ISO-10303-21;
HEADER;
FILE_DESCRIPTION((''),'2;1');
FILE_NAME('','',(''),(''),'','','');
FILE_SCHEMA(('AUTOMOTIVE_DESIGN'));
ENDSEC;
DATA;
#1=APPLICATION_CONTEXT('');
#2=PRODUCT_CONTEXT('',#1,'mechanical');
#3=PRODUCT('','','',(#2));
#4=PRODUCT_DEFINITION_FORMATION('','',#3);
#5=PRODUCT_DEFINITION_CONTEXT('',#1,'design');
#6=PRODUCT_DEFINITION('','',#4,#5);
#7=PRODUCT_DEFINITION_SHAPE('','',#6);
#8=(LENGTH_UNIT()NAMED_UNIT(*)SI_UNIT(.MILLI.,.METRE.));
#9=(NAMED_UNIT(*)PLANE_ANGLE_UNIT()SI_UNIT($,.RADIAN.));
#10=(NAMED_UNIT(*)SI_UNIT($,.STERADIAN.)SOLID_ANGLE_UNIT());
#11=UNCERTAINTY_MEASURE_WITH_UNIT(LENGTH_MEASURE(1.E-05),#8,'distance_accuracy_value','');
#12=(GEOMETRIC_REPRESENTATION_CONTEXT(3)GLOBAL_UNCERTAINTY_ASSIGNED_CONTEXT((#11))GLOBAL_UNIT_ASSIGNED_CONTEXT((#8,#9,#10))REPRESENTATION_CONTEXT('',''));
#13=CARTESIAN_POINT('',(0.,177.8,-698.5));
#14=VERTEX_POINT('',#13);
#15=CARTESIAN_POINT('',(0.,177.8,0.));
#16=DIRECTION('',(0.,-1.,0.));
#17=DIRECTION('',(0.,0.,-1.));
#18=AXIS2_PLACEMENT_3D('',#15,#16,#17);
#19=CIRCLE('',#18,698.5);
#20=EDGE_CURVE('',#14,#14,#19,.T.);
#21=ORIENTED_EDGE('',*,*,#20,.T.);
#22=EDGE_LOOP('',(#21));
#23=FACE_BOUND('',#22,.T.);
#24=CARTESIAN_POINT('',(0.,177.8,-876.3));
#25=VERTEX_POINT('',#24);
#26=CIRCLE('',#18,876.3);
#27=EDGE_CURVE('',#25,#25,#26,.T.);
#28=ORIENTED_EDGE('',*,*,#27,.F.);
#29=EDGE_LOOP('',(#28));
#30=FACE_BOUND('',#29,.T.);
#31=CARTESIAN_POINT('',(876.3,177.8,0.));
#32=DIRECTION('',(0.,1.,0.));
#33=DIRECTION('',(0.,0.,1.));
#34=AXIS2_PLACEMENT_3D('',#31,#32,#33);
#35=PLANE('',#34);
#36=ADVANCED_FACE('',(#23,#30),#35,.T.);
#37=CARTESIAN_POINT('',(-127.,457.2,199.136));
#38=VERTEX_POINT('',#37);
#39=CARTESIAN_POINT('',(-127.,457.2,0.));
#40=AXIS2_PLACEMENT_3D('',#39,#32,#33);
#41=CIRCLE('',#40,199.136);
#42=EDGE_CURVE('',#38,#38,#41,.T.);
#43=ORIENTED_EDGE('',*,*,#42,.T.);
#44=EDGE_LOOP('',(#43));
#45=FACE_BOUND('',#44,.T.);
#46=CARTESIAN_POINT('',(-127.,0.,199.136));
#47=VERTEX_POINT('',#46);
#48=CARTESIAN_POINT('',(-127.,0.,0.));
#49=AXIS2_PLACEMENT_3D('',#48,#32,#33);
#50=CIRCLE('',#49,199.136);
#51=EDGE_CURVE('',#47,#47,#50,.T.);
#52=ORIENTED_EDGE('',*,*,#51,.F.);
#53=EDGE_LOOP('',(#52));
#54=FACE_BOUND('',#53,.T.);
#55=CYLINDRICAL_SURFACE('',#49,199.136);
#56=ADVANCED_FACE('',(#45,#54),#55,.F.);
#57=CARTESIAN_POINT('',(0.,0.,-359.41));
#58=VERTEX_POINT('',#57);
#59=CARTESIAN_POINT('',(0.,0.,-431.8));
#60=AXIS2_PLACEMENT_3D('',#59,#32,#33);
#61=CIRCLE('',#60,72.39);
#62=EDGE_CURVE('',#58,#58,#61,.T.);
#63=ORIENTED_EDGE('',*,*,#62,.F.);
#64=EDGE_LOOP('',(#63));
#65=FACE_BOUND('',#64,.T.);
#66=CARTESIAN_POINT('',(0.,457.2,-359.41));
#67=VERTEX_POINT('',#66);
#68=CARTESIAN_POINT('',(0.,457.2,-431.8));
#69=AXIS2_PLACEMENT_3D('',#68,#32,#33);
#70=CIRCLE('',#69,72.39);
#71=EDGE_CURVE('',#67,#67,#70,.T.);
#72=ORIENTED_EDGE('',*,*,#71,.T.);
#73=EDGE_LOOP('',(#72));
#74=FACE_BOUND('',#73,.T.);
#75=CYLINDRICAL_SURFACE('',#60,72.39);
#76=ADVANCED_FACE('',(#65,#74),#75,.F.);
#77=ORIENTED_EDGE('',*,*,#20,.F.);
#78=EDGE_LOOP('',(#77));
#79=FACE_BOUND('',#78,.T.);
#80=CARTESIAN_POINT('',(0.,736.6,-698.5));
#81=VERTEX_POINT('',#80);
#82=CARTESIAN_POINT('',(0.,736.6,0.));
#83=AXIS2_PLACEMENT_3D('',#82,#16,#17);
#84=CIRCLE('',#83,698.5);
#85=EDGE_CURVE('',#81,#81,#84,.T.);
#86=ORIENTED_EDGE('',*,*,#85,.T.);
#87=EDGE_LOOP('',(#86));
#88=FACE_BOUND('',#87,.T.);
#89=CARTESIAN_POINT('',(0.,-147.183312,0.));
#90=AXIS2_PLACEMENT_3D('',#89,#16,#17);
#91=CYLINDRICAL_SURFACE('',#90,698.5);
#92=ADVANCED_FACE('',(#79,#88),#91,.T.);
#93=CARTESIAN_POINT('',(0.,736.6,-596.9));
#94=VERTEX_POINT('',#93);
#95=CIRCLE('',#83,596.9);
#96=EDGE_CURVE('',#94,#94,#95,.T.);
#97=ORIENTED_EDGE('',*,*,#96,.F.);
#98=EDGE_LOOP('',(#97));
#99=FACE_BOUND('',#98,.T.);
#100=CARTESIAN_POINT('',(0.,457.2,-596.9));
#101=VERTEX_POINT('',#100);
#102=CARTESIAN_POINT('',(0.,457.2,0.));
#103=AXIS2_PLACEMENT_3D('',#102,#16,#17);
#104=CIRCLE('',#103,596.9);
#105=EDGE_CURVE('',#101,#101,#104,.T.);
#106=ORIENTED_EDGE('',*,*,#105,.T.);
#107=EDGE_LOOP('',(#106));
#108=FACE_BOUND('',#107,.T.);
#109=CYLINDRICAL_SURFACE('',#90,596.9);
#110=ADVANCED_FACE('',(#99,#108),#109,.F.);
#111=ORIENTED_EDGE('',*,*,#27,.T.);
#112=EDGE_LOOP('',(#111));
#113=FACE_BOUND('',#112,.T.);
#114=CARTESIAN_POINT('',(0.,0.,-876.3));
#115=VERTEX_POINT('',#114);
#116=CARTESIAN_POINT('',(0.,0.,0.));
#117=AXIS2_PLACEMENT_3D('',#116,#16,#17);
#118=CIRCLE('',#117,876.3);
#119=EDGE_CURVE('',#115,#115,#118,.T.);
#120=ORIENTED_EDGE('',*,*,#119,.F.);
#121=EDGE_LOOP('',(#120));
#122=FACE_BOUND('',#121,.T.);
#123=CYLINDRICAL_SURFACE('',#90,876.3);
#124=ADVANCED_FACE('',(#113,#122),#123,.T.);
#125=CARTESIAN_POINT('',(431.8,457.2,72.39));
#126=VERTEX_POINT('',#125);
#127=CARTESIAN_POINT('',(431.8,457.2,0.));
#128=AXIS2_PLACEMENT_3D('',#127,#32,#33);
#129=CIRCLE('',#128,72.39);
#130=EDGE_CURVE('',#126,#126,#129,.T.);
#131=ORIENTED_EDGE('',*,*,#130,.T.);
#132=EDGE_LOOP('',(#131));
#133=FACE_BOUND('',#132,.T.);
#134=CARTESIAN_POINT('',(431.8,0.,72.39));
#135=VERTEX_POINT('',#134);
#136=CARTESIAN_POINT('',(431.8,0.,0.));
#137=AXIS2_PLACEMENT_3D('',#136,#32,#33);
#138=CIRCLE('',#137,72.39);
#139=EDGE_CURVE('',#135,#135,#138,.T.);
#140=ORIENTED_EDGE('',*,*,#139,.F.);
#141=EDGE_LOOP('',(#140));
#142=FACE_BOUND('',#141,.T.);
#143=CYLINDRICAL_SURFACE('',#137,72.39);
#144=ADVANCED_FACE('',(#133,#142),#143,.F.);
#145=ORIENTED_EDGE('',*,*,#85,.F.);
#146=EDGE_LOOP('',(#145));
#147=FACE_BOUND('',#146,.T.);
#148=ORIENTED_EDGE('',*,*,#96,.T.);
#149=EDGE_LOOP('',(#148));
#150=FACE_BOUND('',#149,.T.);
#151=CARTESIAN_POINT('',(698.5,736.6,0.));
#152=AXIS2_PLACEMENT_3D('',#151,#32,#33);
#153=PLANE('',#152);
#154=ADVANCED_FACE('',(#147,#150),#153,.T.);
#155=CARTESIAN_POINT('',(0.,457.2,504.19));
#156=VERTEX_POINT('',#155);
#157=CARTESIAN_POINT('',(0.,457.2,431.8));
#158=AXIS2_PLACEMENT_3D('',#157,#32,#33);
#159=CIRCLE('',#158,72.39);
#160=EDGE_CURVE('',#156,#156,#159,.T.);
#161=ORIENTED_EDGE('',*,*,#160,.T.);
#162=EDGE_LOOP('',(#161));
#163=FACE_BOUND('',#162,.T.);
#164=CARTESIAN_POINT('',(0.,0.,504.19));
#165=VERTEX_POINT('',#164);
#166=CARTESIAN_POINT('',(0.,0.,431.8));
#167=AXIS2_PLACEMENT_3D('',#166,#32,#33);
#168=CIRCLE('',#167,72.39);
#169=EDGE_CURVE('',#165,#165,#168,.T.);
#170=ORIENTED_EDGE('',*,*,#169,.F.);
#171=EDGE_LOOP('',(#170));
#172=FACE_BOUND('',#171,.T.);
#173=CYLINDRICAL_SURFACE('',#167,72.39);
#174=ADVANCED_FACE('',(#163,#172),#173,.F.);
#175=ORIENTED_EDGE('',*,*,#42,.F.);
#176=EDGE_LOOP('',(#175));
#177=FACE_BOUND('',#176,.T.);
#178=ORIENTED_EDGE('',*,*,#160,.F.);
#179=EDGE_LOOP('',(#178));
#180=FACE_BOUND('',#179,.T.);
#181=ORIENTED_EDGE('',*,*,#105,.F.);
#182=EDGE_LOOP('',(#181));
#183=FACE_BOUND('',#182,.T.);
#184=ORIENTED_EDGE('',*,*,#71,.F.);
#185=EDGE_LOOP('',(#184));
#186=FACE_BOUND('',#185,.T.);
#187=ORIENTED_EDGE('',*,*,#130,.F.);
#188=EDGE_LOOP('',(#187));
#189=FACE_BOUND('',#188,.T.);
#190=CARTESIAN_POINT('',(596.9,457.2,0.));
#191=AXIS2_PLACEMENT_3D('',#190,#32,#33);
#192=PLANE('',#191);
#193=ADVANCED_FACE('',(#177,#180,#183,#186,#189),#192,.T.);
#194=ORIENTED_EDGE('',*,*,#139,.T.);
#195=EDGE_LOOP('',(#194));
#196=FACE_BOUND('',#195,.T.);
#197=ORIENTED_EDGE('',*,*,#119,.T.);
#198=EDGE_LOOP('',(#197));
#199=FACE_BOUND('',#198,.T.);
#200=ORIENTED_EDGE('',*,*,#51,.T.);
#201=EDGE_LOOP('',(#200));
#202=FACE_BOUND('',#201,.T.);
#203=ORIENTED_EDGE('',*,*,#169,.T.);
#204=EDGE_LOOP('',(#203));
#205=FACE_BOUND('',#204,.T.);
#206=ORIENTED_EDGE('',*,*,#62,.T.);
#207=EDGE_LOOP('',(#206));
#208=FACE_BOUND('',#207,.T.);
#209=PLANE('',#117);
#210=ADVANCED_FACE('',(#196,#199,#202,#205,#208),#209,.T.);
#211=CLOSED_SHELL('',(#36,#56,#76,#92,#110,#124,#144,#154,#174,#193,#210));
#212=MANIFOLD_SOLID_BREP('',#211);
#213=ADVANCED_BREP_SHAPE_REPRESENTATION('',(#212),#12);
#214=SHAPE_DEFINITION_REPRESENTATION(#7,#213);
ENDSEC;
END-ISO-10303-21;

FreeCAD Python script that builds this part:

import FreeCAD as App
import Part
import Sketcher

V = App.Vector
Q = App.Units.Quantity

doc = App.newDocument("Part")
params = doc.addObject("Spreadsheet::Sheet", "Params")
for row, (alias, value) in enumerate([
    ("sketch1_width", "7 in"),
    ("sketch1_width2", "4 in"),
    ("sketch1_height", "22 in"),
    ("sketch1_height2", "11 in"),
    ("sketch1_width3", "34.5 in"),
    ("revolution_angle", "360 deg"),
    ("sketch2_diameter", "5.7 in"),
    ("sketch2_diameter2", "15.68 in"),
], start=1):
    params.set(f"A{row}", alias)
    params.set(f"B{row}", "=" + value)
    params.setAlias(f"B{row}", alias)

body = doc.addObject("PartDesign::Body", "Body")

# Sketch on XY plane
sketch1 = body.newObject("Sketcher::SketchObject", "Sketch")
sketch1.AttachmentSupport = (doc.getObject("XY_Plane"), [""])
sketch1.MapMode = "FlatFace"
sketch1.addGeometry(Part.LineSegment(V(0, 0, 0), V(876.3, 0, 0)), False)
sketch1.addGeometry(Part.LineSegment(V(876.3, 0, 0), V(876.3, 177.8, 0)), False)
sketch1.addGeometry(Part.LineSegment(V(876.3, 177.8, 0), V(698.5, 177.8, 0)), False)
sketch1.addGeometry(Part.LineSegment(V(698.5, 177.8, 0), V(698.5, 736.6, 0)), False)
sketch1.addGeometry(Part.LineSegment(V(698.5, 736.6, 0), V(596.9, 736.6, 0)), False)
sketch1.addGeometry(Part.LineSegment(V(596.9, 736.6, 0), V(596.9, 457.2, 0)), False)
sketch1.addGeometry(Part.LineSegment(V(596.9, 457.2, 0), V(0, 457.2, 0)), False)
sketch1.addGeometry(Part.LineSegment(V(0, 457.2, 0), V(0, 0, 0)), False)
sketch1.addConstraint(Sketcher.Constraint("Coincident", 0, 2, 1, 1))
sketch1.addConstraint(Sketcher.Constraint("Coincident", 1, 2, 2, 1))
sketch1.addConstraint(Sketcher.Constraint("Coincident", 2, 2, 3, 1))
sketch1.addConstraint(Sketcher.Constraint("Coincident", 3, 2, 4, 1))
sketch1.addConstraint(Sketcher.Constraint("Coincident", 4, 2, 5, 1))
sketch1.addConstraint(Sketcher.Constraint("Coincident", 5, 2, 6, 1))
sketch1.addConstraint(Sketcher.Constraint("Coincident", 6, 2, 7, 1))
sketch1.addConstraint(Sketcher.Constraint("Coincident", 7, 2, 0, 1))
sketch1.addConstraint(Sketcher.Constraint("Horizontal", 0))
sketch1.addConstraint(Sketcher.Constraint("Vertical", 1))
sketch1.addConstraint(Sketcher.Constraint("Horizontal", 2))
sketch1.addConstraint(Sketcher.Constraint("Vertical", 3))
sketch1.addConstraint(Sketcher.Constraint("Horizontal", 4))
sketch1.addConstraint(Sketcher.Constraint("Vertical", 5))
sketch1.addConstraint(Sketcher.Constraint("Horizontal", 6))
sketch1.addConstraint(Sketcher.Constraint("Vertical", 7))
sketch1.addConstraint(Sketcher.Constraint("Coincident", 7, 2, -1, 1))
sketch1.addConstraint(Sketcher.Constraint("Equal", 2, 1))
sketch1.addConstraint(Sketcher.Constraint("DistanceX", 2, 2, 2, 1, Q("7 in")))
sketch1.addConstraint(Sketcher.Constraint("DistanceX", 4, 2, 4, 1, Q("4 in")))
sketch1.addConstraint(Sketcher.Constraint("DistanceY", 3, 1, 3, 2, Q("22 in")))
sketch1.addConstraint(Sketcher.Constraint("DistanceY", 5, 2, 5, 1, Q("11 in")))
sketch1.addConstraint(Sketcher.Constraint("DistanceX", 0, 1, 0, 2, Q("34.5 in")))
sketch1.setExpression("Constraints[18]", "Params.sketch1_width")
sketch1.setExpression("Constraints[19]", "Params.sketch1_width2")
sketch1.setExpression("Constraints[20]", "Params.sketch1_height")
sketch1.setExpression("Constraints[21]", "Params.sketch1_height2")
sketch1.setExpression("Constraints[22]", "Params.sketch1_width3")
revolution = body.newObject("PartDesign::Revolution", "Revolution")
revolution.Profile = sketch1
revolution.ReferenceAxis = (sketch1, ["V_Axis"])
revolution.setExpression("Angle", "Params.revolution_angle")

# Sketch on XZ plane
sketch2 = body.newObject("Sketcher::SketchObject", "Sketch001")
sketch2.AttachmentSupport = (doc.getObject("XZ_Plane"), [""])
sketch2.MapMode = "FlatFace"
sketch2.AttachmentOffset = App.Placement(V(0, 0, -18 * 25.4), App.Rotation())
sketch2.addGeometry(Part.Circle(V(-127, 0, 0), V(0, 0, 1), 199.136), False)
sketch2.addGeometry(Part.Circle(V(0, -431.8, 0), V(0, 0, 1), 72.39), False)
sketch2.addGeometry(Part.Circle(V(431.8, 0, 0), V(0, 0, 1), 72.39), False)
sketch2.addGeometry(Part.Circle(V(0, 431.8, 0), V(0, 0, 1), 72.39), False)
sketch2.addConstraint(Sketcher.Constraint("Equal", 1, 2))
sketch2.addConstraint(Sketcher.Constraint("Equal", 2, 3))
sketch2.addConstraint(Sketcher.Constraint("Symmetric", 1, 3, 3, 3, -1, 1))
sketch2.addConstraint(Sketcher.Constraint("PointOnObject", 0, 3, -1))
sketch2.addConstraint(Sketcher.Constraint("PointOnObject", 1, 3, -2))
sketch2.addConstraint(Sketcher.Constraint("PointOnObject", 2, 3, -1))
sketch2.addConstraint(Sketcher.Constraint("Diameter", 1, Q("5.7 in")))
sketch2.addConstraint(Sketcher.Constraint("Diameter", 0, Q("15.68 in")))
sketch2.addConstraint(Sketcher.Constraint("DistanceX", 0, 3, -1, 1, Q("5 in")))
sketch2.addConstraint(Sketcher.Constraint("DistanceY", 1, 3, -1, 1, Q("17 in")))
sketch2.addConstraint(Sketcher.Constraint("DistanceX", -1, 1, 2, 3, Q("17 in")))
sketch2.setExpression("Constraints[6]", "Params.sketch2_diameter")
sketch2.setExpression("Constraints[7]", "Params.sketch2_diameter2")
pocket1 = body.newObject("PartDesign::Pocket", "Pocket")
pocket1.Profile = sketch2
pocket1.Type = "ThroughAll"
pocket1.Reversed = True

doc.recompute()
